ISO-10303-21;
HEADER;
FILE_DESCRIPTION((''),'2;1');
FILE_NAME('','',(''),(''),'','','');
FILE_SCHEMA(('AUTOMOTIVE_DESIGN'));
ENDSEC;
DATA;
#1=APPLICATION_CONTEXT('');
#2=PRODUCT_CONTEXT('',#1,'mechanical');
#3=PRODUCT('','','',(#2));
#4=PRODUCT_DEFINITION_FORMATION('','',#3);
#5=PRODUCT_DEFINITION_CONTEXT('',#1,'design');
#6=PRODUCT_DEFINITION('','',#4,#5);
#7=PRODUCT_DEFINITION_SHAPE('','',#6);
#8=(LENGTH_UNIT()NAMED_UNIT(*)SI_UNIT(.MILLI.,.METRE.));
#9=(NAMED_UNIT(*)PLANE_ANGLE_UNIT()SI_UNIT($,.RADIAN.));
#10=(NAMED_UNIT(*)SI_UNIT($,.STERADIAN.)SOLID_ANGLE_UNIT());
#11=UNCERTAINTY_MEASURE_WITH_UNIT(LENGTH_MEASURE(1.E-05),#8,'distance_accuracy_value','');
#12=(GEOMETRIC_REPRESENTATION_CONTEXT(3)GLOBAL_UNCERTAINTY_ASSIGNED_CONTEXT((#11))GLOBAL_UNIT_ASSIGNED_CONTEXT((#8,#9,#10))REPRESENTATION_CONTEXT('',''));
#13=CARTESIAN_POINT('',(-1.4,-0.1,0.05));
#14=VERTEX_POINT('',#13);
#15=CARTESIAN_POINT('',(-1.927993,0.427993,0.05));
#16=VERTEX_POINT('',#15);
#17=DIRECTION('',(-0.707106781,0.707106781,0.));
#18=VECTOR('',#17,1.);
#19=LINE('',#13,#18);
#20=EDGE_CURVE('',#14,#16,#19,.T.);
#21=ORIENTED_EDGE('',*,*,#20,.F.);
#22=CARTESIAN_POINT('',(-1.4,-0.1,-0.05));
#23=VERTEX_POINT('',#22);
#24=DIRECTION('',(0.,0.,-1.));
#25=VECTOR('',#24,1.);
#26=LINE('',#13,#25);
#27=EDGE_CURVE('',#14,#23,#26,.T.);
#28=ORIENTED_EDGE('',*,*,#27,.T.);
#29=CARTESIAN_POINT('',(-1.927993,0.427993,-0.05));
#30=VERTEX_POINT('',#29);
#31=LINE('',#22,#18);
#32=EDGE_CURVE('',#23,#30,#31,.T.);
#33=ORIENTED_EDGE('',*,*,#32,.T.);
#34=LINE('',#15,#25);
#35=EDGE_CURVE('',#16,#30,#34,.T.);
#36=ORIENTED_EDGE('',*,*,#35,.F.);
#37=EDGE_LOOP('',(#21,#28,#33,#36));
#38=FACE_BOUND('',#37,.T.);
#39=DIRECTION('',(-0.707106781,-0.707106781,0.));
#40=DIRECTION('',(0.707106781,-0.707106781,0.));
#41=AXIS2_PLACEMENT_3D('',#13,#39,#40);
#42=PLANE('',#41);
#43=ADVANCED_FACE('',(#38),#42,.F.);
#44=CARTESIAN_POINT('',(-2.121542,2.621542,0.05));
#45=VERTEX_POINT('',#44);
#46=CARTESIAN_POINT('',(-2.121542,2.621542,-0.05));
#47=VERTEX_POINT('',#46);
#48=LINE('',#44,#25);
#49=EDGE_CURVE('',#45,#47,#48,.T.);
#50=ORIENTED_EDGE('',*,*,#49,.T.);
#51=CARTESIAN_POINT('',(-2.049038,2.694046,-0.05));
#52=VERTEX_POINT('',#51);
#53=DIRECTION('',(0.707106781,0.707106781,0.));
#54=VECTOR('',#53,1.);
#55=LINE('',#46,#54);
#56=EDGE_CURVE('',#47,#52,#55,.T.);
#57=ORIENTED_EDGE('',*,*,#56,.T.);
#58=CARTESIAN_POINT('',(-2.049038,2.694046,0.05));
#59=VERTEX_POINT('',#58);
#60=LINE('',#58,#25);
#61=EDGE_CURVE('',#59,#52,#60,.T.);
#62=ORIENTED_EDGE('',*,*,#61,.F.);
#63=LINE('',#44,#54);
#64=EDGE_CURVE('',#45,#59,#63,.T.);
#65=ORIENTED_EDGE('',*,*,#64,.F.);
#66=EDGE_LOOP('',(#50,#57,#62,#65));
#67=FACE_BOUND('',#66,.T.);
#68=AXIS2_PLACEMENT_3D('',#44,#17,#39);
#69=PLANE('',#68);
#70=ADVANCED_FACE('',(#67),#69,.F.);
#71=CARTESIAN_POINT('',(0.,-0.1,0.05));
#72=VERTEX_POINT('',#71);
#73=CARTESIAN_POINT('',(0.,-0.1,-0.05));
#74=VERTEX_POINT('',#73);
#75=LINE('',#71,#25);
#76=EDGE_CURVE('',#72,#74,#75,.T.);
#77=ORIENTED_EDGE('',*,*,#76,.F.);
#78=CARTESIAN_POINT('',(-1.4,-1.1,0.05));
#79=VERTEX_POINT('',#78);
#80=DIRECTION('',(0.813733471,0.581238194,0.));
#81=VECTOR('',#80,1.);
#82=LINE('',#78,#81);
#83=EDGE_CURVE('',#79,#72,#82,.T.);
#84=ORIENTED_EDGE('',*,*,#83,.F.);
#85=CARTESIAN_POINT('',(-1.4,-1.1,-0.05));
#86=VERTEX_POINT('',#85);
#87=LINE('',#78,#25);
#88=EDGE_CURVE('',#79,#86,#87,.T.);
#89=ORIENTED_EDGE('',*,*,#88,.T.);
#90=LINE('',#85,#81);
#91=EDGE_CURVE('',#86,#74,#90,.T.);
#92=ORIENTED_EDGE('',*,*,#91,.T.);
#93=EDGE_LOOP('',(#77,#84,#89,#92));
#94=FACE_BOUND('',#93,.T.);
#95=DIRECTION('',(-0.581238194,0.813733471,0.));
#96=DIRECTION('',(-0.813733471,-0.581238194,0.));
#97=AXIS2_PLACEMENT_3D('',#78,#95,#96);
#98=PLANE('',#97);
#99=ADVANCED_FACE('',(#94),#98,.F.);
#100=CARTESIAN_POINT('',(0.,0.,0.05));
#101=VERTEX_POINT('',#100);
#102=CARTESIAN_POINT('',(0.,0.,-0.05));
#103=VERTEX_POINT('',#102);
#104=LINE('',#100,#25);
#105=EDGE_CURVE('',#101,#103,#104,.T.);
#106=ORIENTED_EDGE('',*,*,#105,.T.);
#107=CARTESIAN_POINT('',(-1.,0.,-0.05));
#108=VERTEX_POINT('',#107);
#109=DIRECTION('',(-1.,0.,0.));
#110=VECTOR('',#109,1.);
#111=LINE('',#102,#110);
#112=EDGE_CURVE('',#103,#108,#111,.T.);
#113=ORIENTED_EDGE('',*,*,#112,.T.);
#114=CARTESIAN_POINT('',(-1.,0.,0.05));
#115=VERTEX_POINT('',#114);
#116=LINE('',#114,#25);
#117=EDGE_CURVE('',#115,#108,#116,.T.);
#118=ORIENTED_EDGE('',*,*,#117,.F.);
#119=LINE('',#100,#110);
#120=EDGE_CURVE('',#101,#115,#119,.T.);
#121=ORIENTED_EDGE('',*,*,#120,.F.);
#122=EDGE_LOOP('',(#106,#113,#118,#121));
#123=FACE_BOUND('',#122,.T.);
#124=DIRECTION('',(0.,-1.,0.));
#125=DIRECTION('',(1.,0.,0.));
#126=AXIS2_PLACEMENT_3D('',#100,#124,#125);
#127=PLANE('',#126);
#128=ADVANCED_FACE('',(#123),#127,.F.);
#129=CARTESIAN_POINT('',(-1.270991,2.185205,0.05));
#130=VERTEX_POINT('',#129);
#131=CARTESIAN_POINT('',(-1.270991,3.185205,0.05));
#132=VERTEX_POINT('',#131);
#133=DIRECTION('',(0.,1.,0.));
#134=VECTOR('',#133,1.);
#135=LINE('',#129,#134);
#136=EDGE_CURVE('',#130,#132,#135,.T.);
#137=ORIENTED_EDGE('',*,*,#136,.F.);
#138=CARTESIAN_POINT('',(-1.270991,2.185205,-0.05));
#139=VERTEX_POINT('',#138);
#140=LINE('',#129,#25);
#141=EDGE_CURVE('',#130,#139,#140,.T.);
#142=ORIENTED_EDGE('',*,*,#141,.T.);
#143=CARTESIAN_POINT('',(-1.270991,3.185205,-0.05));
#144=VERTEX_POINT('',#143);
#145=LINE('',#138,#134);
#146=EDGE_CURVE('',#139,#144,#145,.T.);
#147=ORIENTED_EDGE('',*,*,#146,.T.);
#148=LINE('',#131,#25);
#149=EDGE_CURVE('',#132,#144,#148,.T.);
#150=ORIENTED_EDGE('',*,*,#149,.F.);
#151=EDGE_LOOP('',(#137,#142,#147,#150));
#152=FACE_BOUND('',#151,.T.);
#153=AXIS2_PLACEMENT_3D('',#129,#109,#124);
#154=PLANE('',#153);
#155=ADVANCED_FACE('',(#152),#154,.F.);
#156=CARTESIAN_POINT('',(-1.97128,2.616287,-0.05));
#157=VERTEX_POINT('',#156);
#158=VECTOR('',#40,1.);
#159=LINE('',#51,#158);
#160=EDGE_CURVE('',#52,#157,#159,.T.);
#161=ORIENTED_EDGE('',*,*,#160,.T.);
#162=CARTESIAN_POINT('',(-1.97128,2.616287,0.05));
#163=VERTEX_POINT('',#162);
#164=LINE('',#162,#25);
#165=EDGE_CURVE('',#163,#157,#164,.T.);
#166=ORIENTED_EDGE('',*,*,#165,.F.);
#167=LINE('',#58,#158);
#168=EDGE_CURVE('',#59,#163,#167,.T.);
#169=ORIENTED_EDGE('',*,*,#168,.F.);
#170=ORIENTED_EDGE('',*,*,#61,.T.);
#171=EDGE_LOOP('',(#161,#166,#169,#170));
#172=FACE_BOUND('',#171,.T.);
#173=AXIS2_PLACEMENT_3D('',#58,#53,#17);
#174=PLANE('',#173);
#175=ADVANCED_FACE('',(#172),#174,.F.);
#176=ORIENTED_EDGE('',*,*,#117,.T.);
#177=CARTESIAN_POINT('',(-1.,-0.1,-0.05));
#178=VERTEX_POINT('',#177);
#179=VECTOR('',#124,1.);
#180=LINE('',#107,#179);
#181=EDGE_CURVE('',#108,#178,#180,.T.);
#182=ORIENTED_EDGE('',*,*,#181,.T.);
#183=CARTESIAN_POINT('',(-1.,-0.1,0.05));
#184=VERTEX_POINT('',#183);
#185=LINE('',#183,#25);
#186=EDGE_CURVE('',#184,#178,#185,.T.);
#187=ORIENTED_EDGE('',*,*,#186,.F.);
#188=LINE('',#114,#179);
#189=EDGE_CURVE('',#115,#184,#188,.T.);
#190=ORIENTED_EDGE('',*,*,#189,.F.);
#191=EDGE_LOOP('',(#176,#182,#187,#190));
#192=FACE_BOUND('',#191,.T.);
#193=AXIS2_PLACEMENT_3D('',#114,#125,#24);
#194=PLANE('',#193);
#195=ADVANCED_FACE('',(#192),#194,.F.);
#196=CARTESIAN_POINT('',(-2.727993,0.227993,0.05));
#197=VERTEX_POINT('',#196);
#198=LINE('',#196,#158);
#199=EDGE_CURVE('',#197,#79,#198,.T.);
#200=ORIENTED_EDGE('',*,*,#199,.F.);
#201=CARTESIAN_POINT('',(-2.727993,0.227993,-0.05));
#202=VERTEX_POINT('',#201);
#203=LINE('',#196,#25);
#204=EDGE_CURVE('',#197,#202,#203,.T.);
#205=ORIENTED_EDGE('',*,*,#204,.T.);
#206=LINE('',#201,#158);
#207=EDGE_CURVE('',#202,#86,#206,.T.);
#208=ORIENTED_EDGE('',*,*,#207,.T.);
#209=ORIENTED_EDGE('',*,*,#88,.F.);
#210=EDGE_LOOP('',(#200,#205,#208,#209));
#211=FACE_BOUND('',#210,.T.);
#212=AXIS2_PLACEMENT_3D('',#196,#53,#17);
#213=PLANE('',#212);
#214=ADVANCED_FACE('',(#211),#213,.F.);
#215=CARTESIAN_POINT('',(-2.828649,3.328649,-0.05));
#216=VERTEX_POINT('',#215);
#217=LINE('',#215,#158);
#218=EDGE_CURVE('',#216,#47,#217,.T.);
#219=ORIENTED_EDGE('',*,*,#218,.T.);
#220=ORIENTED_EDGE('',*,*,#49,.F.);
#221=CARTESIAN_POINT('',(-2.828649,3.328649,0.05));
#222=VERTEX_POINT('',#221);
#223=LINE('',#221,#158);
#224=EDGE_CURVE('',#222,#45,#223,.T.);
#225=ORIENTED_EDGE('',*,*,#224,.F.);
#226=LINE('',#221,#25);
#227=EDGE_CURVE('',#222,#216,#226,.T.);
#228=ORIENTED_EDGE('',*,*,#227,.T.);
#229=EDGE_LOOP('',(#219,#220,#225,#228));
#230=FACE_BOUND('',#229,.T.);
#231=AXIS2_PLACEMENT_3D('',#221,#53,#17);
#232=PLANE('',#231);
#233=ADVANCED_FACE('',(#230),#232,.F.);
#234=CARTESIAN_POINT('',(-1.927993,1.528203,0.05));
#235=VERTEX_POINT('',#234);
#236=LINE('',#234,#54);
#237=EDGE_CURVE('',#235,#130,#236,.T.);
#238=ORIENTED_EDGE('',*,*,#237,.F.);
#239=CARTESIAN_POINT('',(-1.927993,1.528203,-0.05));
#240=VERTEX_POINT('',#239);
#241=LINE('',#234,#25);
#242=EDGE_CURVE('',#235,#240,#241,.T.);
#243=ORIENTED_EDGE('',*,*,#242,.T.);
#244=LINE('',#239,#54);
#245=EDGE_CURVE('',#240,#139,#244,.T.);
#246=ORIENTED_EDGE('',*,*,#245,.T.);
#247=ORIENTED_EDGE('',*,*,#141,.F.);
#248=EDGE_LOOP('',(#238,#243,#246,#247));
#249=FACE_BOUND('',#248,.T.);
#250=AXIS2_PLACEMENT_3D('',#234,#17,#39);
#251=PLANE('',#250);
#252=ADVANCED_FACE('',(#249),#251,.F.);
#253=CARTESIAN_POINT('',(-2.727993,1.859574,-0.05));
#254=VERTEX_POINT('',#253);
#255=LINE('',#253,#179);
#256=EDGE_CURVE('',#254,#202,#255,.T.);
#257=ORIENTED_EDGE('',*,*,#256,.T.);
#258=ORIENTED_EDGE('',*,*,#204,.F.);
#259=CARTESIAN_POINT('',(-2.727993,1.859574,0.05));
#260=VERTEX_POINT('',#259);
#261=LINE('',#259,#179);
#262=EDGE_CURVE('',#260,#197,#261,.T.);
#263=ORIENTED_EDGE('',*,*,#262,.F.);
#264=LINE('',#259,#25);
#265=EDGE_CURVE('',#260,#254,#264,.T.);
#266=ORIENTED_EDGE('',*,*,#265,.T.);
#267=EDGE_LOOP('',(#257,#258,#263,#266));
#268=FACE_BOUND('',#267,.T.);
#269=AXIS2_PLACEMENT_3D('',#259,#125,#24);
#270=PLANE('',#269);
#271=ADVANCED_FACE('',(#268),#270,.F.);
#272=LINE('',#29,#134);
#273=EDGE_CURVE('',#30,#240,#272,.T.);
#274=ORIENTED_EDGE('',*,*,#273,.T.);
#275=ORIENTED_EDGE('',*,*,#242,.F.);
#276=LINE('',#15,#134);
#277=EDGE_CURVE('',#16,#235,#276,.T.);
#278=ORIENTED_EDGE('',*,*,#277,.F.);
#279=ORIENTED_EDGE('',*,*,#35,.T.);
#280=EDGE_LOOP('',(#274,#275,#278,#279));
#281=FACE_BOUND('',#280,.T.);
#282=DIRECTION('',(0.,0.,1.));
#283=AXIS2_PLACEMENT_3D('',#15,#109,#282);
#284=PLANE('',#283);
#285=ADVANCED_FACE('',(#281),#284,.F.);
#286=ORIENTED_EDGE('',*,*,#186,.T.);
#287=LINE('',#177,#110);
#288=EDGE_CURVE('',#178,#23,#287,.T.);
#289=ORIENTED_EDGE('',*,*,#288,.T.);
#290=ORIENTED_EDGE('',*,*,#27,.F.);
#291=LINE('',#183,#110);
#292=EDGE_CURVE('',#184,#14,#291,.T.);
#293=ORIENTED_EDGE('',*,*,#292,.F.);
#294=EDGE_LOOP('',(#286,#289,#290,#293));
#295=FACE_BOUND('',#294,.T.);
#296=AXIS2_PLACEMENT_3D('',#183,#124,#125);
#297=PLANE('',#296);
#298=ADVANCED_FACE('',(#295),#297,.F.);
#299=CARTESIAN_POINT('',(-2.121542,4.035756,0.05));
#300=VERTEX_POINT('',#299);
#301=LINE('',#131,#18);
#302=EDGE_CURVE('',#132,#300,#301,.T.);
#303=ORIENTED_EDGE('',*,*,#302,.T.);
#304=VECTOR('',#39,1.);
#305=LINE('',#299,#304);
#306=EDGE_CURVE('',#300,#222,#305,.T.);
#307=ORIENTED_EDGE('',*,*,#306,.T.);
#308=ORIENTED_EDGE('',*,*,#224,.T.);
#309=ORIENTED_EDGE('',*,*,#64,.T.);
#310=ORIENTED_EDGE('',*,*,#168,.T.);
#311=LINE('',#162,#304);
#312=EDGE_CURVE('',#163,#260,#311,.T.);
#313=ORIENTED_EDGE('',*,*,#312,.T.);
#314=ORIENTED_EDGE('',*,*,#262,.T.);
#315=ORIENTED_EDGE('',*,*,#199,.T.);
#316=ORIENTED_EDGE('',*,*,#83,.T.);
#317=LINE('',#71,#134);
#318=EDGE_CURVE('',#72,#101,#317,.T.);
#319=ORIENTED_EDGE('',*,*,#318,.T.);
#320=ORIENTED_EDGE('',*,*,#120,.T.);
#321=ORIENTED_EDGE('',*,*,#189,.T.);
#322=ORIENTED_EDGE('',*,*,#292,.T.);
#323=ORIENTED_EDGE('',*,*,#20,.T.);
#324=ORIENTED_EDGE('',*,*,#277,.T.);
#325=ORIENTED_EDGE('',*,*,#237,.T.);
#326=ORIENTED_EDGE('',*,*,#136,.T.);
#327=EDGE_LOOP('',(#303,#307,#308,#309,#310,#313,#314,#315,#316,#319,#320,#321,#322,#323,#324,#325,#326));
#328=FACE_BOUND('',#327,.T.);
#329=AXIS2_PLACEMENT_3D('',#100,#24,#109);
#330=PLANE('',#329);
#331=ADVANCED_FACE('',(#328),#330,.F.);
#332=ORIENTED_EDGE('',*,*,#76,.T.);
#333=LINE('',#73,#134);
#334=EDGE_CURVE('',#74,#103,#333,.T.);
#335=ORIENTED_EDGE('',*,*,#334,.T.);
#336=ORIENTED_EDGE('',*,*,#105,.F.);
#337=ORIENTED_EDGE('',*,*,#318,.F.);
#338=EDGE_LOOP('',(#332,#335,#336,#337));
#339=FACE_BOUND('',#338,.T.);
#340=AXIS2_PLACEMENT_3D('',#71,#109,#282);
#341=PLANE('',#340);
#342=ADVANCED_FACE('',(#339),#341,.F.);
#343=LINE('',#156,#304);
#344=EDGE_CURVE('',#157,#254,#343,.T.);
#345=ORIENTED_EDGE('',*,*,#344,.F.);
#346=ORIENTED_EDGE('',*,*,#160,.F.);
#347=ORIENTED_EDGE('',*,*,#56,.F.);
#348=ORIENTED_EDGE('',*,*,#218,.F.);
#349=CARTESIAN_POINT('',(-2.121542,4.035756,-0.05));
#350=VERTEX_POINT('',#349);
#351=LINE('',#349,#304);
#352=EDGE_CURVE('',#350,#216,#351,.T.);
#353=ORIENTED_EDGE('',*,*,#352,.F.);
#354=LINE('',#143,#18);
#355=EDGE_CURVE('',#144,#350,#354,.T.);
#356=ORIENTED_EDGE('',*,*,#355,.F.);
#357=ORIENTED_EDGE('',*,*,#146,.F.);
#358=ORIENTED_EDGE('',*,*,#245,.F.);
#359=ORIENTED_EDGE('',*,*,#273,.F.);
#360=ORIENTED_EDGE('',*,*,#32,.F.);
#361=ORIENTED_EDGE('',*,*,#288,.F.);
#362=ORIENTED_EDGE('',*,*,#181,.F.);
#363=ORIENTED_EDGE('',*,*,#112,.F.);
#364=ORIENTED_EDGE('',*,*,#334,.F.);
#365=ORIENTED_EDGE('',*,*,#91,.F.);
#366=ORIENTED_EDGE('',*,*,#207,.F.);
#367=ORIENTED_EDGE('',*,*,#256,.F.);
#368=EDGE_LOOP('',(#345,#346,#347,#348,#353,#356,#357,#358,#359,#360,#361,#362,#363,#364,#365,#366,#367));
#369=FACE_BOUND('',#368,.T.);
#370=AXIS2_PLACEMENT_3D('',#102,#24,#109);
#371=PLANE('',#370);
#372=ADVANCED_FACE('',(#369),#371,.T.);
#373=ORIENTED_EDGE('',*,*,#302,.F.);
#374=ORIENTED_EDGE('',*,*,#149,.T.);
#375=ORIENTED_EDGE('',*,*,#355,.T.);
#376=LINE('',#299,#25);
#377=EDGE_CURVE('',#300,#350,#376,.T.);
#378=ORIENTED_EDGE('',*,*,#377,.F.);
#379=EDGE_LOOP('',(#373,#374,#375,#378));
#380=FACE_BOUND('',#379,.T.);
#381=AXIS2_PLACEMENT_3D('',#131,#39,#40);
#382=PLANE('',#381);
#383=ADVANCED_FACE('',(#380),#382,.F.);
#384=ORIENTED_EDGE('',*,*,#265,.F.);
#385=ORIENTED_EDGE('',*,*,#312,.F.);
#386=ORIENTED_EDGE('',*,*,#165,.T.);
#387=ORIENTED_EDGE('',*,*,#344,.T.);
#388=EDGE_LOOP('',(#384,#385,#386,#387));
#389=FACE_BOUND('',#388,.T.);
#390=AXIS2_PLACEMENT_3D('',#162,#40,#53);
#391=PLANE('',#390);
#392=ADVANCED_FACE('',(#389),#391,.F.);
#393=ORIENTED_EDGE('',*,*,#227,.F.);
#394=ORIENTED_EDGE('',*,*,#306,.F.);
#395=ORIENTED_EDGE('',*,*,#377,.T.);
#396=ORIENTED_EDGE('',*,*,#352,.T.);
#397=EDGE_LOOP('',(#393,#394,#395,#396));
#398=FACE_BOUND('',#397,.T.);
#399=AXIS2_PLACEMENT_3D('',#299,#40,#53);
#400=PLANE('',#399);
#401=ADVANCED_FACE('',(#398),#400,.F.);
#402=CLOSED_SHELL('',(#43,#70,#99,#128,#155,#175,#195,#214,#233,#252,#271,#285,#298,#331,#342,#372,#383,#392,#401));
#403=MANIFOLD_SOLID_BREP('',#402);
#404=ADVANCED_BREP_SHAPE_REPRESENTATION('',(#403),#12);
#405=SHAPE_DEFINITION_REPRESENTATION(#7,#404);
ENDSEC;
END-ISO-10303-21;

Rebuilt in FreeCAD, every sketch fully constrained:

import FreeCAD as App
import Part
import Sketcher
from FreeCAD import Vector

doc = App.newDocument("Part")
body = doc.addObject("PartDesign::Body", "Body")

# Sketch on XY plane
sketch1 = body.newObject("Sketcher::SketchObject", "Sketch")
sketch1.AttachmentSupport = (doc.getObject("XY_Plane"), [""])
sketch1.MapMode = "FlatFace"
sketch1.addGeometry([
    Part.LineSegment(Vector(0, 0, 0), Vector(-1, 0, 0)),  # 0
    Part.LineSegment(Vector(-1, 0, 0), Vector(-1, -0.1, 0)),  # 1
    Part.LineSegment(Vector(-1, -0.1, 0), Vector(-1.4, -0.1, 0)),  # 2
    Part.LineSegment(Vector(-1.4, -0.1, 0), Vector(-1.927993, 0.427993, 0)),  # 3
    Part.LineSegment(Vector(-1.927993, 0.427993, 0), Vector(-1.927993, 1.528203, 0)),  # 4
    Part.LineSegment(Vector(-1.927993, 1.528203, 0), Vector(-1.270991, 2.185205, 0)),  # 5
    Part.LineSegment(Vector(-1.270991, 2.185205, 0), Vector(-1.270991, 3.185205, 0)),  # 6
    Part.LineSegment(Vector(-1.270991, 3.185205, 0), Vector(-2.121542, 4.035756, 0)),  # 7
    Part.LineSegment(Vector(-2.121542, 4.035756, 0), Vector(-2.828649, 3.328649, 0)),  # 8
    Part.LineSegment(Vector(-2.828649, 3.328649, 0), Vector(-2.121542, 2.621542, 0)),  # 9
    Part.LineSegment(Vector(-2.121542, 2.621542, 0), Vector(-2.049038, 2.694046, 0)),  # 10
    Part.LineSegment(Vector(-2.049038, 2.694046, 0), Vector(-1.97128, 2.616287, 0)),  # 11
    Part.LineSegment(Vector(-1.97128, 2.616287, 0), Vector(-2.727993, 1.859574, 0)),  # 12
    Part.LineSegment(Vector(-2.727993, 1.859574, 0), Vector(-2.727993, 0.227993, 0)),  # 13
    Part.LineSegment(Vector(-2.727993, 0.227993, 0), Vector(-1.4, -1.1, 0)),  # 14
    Part.LineSegment(Vector(-1.4, -1.1, 0), Vector(0, -0.1, 0)),  # 15
    Part.LineSegment(Vector(0, -0.1, 0), Vector(0, 0, 0)),  # 16
], False)
sketch1.addConstraint([
    Sketcher.Constraint("Coincident", 0, 2, 1, 1),
    Sketcher.Constraint("Coincident", 1, 2, 2, 1),
    Sketcher.Constraint("Coincident", 2, 2, 3, 1),
    Sketcher.Constraint("Coincident", 3, 2, 4, 1),
    Sketcher.Constraint("Coincident", 4, 2, 5, 1),
    Sketcher.Constraint("Coincident", 5, 2, 6, 1),
    Sketcher.Constraint("Coincident", 6, 2, 7, 1),
    Sketcher.Constraint("Coincident", 7, 2, 8, 1),
    Sketcher.Constraint("Coincident", 8, 2, 9, 1),
    Sketcher.Constraint("Coincident", 9, 2, 10, 1),
    Sketcher.Constraint("Coincident", 10, 2, 11, 1),
    Sketcher.Constraint("Coincident", 11, 2, 12, 1),
    Sketcher.Constraint("Coincident", 12, 2, 13, 1),
    Sketcher.Constraint("Coincident", 13, 2, 14, 1),
    Sketcher.Constraint("Coincident", 14, 2, 15, 1),
    Sketcher.Constraint("Coincident", 15, 2, 16, 1),
    Sketcher.Constraint("Coincident", 16, 2, 0, 1),
    Sketcher.Constraint("Horizontal", 0),
    Sketcher.Constraint("Vertical", 1),
    Sketcher.Constraint("Horizontal", 2),
    Sketcher.Constraint("Vertical", 4),
    Sketcher.Constraint("Vertical", 6),
    Sketcher.Constraint("Vertical", 13),
    Sketcher.Constraint("Vertical", 16),
    Sketcher.Constraint("Coincident", 16, 2, -1, 1),
    Sketcher.Constraint("Perpendicular", 3, 5),
    Sketcher.Constraint("Perpendicular", 5, 7),
    Sketcher.Constraint("Perpendicular", 7, 8),
    Sketcher.Constraint("Perpendicular", 8, 9),
    Sketcher.Constraint("Perpendicular", 9, 10),
    Sketcher.Constraint("Perpendicular", 10, 11),
    Sketcher.Constraint("Perpendicular", 11, 12),
    Sketcher.Constraint("Perpendicular", 12, 14),
    Sketcher.Constraint("Horizontal", 2, 2, 15, 2),
    Sketcher.Constraint("Vertical", 7, 2, 9, 2),
    Sketcher.Constraint("Vertical", 2, 2, 14, 2),
    Sketcher.Constraint("Equal", 0, 6),
    Sketcher.Constraint("Equal", 8, 9),
    Sketcher.Constraint("DistanceX", 0, 2, 0, 1, 1.0),
    Sketcher.Constraint("Distance", 8, 1.0),
    Sketcher.Constraint("DistanceX", 2, 2, 2, 1, 0.4),
    Sketcher.Constraint("DistanceY", 1, 2, 1, 1, 0.1),
    Sketcher.Constraint("DistanceY", 14, 2, 2, 2, 1.0),
    Sketcher.Constraint("DistanceX", 12, 2, 4, 2, 0.8),
    Sketcher.Constraint("DistanceX", 4, 2, 5, 2, 0.657002),
    Sketcher.Constraint("DistanceY", 4, 1, 4, 2, 1.10021),
    Sketcher.Constraint("DistanceY", 13, 2, 13, 1, 1.63158),
    Sketcher.Constraint("Distance", 7, 1.20286),
    Sketcher.Constraint("DistanceX", 5, 2, -1, 1, 1.270991),
    Sketcher.Constraint("DistanceX", 10, 2, -1, 1, 2.049038),
])
pad1 = body.newObject("PartDesign::Pad", "Pad")
pad1.Profile = sketch1
pad1.Length = 0.1
pad1.Midplane = True

doc.recompute()
